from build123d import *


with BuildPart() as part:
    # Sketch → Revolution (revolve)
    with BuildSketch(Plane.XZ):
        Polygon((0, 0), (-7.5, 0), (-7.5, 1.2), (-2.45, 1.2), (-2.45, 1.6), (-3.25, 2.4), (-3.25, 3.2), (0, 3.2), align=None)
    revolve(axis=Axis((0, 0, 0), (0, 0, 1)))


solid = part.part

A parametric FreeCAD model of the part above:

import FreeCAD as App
import Part
import Sketcher

V = App.Vector
Q = App.Units.Quantity


def add_polygon(sketch, points):
    """Adds a closed chain of lines whose ends are joined by coincident constraints."""
    first, n = sketch.GeometryCount, len(points)
    for a, b in zip(points, points[1:] + points[:1]):
        sketch.addGeometry(Part.LineSegment(App.Vector(*a, 0), App.Vector(*b, 0)), False)
    for i in range(n):
        sketch.addConstraint(Sketcher.Constraint("Coincident", first + i, 2, first + (i + 1) % n, 1))

doc = App.newDocument("Part")
body = doc.addObject("PartDesign::Body", "Body")

sketch1 = doc.addObject("Sketcher::SketchObject", "Sketch")
body.addObject(sketch1)
sketch1.AttachmentSupport = (doc.XZ_Plane, [""])
sketch1.MapMode = "FlatFace"
add_polygon(sketch1, [(-7.5, 0), (0, 0), (0, 3.2), (-3.25, 3.2), (-3.25, 2.4), (-2.45, 1.6), (-2.45, 1.2), (-7.5, 1.2)])
sketch1.addConstraint([
    Sketcher.Constraint("Horizontal", 0),
    Sketcher.Constraint("Vertical", 1),
    Sketcher.Constraint("Horizontal", 2),
    Sketcher.Constraint("Vertical", 3),
    Sketcher.Constraint("Vertical", 5),
    Sketcher.Constraint("Horizontal", 6),
    Sketcher.Constraint("Vertical", 7),
    Sketcher.Constraint("Coincident", 0, 2, -1, 1),
    Sketcher.Constraint("Angle", 4, Q("-45 deg")),
    Sketcher.Constraint("DistanceX", 0, 1, 0, 2, 7.5),
    Sketcher.Constraint("DistanceY", 1, 1, 1, 2, 3.2),
    Sketcher.Constraint("DistanceY", 3, 2, 3, 1, 0.8),
    Sketcher.Constraint("DistanceY", 5, 2, 5, 1, 0.4),
    Sketcher.Constraint("DistanceY", 7, 2, 7, 1, 1.2),
    Sketcher.Constraint("DistanceX", 2, 2, 2, 1, 3.25),
])
revolution = doc.addObject("PartDesign::Revolution", "Revolution")
body.addObject(revolution)
revolution.Profile = sketch1
revolution.ReferenceAxis = (sketch1, ["V_Axis"])
revolution.Angle = 360

doc.recompute()
